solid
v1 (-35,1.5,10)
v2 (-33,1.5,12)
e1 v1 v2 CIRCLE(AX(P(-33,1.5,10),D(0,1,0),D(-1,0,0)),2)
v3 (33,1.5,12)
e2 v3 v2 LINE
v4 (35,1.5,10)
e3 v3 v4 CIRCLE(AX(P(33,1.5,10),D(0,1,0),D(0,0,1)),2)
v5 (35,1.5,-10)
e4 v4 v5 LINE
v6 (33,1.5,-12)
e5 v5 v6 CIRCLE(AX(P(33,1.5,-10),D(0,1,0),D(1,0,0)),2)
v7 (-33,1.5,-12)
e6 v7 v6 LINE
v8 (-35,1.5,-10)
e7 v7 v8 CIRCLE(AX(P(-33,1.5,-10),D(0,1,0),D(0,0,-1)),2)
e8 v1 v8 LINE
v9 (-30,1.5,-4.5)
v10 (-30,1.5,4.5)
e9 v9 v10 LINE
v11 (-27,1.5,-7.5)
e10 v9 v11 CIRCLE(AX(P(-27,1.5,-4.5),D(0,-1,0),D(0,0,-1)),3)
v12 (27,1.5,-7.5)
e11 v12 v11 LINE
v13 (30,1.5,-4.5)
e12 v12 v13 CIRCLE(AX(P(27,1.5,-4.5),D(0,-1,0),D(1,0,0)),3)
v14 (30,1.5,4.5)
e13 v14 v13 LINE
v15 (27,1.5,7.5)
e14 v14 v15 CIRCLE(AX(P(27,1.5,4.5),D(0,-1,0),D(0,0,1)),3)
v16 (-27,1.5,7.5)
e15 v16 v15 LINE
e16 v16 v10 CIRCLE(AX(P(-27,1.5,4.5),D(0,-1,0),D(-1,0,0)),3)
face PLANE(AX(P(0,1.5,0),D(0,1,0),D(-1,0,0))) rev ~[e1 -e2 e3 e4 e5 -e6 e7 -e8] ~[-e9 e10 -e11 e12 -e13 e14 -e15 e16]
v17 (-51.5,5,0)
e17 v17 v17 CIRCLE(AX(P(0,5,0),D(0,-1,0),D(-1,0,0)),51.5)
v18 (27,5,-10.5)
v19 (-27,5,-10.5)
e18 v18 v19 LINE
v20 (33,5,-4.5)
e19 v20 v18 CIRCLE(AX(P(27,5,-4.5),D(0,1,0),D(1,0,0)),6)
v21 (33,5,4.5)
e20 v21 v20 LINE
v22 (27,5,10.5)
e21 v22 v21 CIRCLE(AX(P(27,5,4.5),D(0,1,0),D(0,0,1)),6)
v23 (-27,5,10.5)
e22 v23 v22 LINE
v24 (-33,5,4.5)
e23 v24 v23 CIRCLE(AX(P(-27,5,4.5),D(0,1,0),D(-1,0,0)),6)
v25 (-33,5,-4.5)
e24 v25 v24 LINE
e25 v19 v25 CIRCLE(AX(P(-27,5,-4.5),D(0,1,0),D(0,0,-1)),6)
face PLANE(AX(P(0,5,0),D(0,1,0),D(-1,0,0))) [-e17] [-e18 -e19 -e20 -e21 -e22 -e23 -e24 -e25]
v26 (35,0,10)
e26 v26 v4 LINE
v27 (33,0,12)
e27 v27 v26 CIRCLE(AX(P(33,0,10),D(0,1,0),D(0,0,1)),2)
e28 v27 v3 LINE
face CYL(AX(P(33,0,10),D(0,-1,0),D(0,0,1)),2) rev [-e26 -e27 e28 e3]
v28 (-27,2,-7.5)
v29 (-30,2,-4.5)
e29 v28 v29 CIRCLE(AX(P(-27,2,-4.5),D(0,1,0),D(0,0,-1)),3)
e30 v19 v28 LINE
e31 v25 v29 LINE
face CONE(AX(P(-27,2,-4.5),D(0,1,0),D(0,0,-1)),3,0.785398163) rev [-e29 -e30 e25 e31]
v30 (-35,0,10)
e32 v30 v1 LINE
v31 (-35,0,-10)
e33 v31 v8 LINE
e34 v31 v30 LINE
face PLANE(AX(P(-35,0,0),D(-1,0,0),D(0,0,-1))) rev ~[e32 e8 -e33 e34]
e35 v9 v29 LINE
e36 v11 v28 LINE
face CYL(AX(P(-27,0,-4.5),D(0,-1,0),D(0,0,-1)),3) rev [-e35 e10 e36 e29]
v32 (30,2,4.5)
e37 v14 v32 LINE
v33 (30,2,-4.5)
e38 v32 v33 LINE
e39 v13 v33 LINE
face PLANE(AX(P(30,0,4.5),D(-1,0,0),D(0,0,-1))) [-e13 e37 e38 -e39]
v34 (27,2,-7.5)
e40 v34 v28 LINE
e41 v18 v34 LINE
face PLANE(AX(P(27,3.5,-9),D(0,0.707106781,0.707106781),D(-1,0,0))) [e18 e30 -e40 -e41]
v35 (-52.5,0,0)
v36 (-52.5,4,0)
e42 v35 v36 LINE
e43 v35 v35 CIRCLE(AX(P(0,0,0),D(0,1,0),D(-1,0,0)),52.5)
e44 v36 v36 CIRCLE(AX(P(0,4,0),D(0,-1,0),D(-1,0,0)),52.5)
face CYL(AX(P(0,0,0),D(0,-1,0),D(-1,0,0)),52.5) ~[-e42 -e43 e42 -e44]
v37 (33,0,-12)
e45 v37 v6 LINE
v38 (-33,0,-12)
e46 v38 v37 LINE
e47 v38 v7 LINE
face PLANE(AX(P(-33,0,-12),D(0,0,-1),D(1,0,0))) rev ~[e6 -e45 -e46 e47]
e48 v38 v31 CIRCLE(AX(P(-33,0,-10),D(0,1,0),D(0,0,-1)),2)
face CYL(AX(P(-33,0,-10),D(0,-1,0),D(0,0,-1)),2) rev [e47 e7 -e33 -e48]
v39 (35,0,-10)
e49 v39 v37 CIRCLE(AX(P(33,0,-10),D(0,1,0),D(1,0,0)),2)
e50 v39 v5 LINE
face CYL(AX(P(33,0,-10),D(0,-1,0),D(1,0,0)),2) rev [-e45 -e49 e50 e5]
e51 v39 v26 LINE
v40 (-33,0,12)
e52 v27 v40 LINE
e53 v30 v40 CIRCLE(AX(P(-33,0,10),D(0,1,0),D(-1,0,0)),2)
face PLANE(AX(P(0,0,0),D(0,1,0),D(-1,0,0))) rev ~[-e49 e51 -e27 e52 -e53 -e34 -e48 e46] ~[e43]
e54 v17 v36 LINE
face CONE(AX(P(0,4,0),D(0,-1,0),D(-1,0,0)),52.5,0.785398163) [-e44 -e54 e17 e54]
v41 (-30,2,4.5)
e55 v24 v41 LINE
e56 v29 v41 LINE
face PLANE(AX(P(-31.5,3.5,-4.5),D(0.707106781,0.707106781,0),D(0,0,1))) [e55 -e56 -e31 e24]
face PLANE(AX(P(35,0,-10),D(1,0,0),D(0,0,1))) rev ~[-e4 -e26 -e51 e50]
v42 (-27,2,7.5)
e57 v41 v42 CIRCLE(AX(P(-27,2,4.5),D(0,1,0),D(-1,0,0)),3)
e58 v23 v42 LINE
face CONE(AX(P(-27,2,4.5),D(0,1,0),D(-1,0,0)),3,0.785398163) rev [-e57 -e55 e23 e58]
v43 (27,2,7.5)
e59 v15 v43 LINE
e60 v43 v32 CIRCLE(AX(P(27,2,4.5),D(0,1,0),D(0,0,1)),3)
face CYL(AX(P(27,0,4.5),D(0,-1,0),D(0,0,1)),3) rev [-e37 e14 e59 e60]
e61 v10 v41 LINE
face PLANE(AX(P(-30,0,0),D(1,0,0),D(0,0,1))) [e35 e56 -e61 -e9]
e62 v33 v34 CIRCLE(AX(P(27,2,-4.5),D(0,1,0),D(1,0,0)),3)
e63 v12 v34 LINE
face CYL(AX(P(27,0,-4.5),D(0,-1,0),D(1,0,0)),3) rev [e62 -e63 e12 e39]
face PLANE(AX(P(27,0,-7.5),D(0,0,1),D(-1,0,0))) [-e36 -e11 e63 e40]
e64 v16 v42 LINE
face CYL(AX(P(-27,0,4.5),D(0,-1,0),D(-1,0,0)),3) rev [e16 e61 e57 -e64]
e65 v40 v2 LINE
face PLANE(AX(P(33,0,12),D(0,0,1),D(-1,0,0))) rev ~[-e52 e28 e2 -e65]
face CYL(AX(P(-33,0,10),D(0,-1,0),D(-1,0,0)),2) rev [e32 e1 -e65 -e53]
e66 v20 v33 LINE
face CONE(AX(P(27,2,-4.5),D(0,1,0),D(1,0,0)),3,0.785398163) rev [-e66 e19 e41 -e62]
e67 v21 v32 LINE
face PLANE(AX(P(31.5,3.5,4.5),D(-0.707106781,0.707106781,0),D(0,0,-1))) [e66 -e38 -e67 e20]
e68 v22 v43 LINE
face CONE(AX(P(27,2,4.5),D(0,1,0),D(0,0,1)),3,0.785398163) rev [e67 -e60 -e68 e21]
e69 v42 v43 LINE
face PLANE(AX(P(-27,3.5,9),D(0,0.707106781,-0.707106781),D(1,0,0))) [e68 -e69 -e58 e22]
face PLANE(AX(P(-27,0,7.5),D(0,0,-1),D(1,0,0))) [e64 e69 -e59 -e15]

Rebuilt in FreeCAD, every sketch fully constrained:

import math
import FreeCAD as App
import Part
import Sketcher
Q = App.Units.Quantity


def edges_at(feature, points):
    """Names of the edges that pass closest to the given points."""
    edges = feature.Shape.Edges
    near = lambda p: min(range(len(edges)), key=lambda i: edges[i].distToShape(Part.Vertex(*p))[0])
    return sorted({f"Edge{near(p) + 1}" for p in points})

doc = App.newDocument("Part")
body = doc.addObject("PartDesign::Body", "Body")

sketch1 = body.newObject("Sketcher::SketchObject", "Sketch")
sketch1.AttachmentSupport = (doc.getObject("XZ_Plane"), [""])
sketch1.MapMode = "FlatFace"
sketch1.addGeometry([
    Part.Circle(App.Vector(0, 0, 0), App.Vector(0, 0, 1), 52.5),
    Part.LineSegment(App.Vector(-30, 4.5, 0), App.Vector(-30, -4.5, 0)),
    Part.ArcOfCircle(Part.Circle(App.Vector(-27, -4.5, 0), App.Vector(0, 0, 1), 3), math.radians(180), math.radians(270)),
    Part.LineSegment(App.Vector(-27, -7.5, 0), App.Vector(27, -7.5, 0)),
    Part.ArcOfCircle(Part.Circle(App.Vector(27, -4.5, 0), App.Vector(0, 0, 1), 3), math.radians(-90), math.radians(0)),
    Part.LineSegment(App.Vector(30, -4.5, 0), App.Vector(30, 4.5, 0)),
    Part.ArcOfCircle(Part.Circle(App.Vector(27, 4.5, 0), App.Vector(0, 0, 1), 3), math.radians(0), math.radians(90)),
    Part.LineSegment(App.Vector(27, 7.5, 0), App.Vector(-27, 7.5, 0)),
    Part.ArcOfCircle(Part.Circle(App.Vector(-27, 4.5, 0), App.Vector(0, 0, 1), 3), math.radians(90), math.radians(180)),
], False)
sketch1.addConstraint([
    Sketcher.Constraint("Tangent", 1, 2, 2, 1),
    Sketcher.Constraint("Tangent", 2, 2, 3, 1),
    Sketcher.Constraint("Tangent", 3, 2, 4, 1),
    Sketcher.Constraint("Tangent", 4, 2, 5, 1),
    Sketcher.Constraint("Tangent", 5, 2, 6, 1),
    Sketcher.Constraint("Tangent", 6, 2, 7, 1),
    Sketcher.Constraint("Tangent", 7, 2, 8, 1),
    Sketcher.Constraint("Tangent", 8, 2, 1, 1),
    Sketcher.Constraint("Vertical", 1),
    Sketcher.Constraint("Horizontal", 3),
    Sketcher.Constraint("Vertical", 5),
    Sketcher.Constraint("Horizontal", 7),
    Sketcher.Constraint("Coincident", 0, 3, -1, 1),
    Sketcher.Constraint("Equal", 2, 4),
    Sketcher.Constraint("Equal", 4, 6),
    Sketcher.Constraint("Equal", 6, 8),
    Sketcher.Constraint("Symmetric", 2, 3, 6, 3, -1, 1),
    Sketcher.Constraint("Diameter", 0, Q("105 mm")),
    Sketcher.Constraint("Radius", 2, Q("3 mm")),
    Sketcher.Constraint("DistanceY", 3, 2, 6, 2, Q("15 mm")),
    Sketcher.Constraint("DistanceX", 3, 1, 3, 2, Q("54 mm")),
])
pad1 = body.newObject("PartDesign::Pad", "Pad")
pad1.Profile = sketch1
pad1.Length = 5
pad1.Reversed = True
doc.recompute()

chamfer = body.newObject("PartDesign::Chamfer", "Chamfer")
chamfer.Base = (pad1, edges_at(pad1, [
    (0, 5, 7.5),
    (-29.121, 5, 6.621),
    (-30, 5, 0),
    (-29.121, 5, -6.621),
    (0, 5, -7.5),
    (29.121, 5, -6.621),
    (30, 5, 0),
    (29.121, 5, 6.621),
]))
chamfer.Size = 3
doc.recompute()

chamfer2 = body.newObject("PartDesign::Chamfer", "Chamfer001")
chamfer2.Base = (chamfer, edges_at(chamfer, [(52.5, 5, 0)]))
chamfer2.Size = 1

sketch2 = body.newObject("Sketcher::SketchObject", "Sketch001")
sketch2.AttachmentSupport = (doc.getObject("XZ_Plane"), [""])
sketch2.MapMode = "FlatFace"
sketch2.addGeometry([
    Part.LineSegment(App.Vector(-35, -10, 0), App.Vector(-35, 10, 0)),
    Part.ArcOfCircle(Part.Circle(App.Vector(-33, 10, 0), App.Vector(0, 0, 1), 2), math.radians(90), math.radians(180)),
    Part.LineSegment(App.Vector(-33, 12, 0), App.Vector(33, 12, 0)),
    Part.ArcOfCircle(Part.Circle(App.Vector(33, 10, 0), App.Vector(0, 0, 1), 2), math.radians(0), math.radians(90)),
    Part.LineSegment(App.Vector(35, 10, 0), App.Vector(35, -10, 0)),
    Part.ArcOfCircle(Part.Circle(App.Vector(33, -10, 0), App.Vector(0, 0, 1), 2), math.radians(-90), math.radians(0)),
    Part.LineSegment(App.Vector(33, -12, 0), App.Vector(-33, -12, 0)),
    Part.ArcOfCircle(Part.Circle(App.Vector(-33, -10, 0), App.Vector(0, 0, 1), 2), math.radians(180), math.radians(270)),
], False)
sketch2.addConstraint([
    Sketcher.Constraint("Tangent", 0, 2, 1, 2),
    Sketcher.Constraint("Tangent", 1, 1, 2, 1),
    Sketcher.Constraint("Tangent", 2, 2, 3, 2),
    Sketcher.Constraint("Tangent", 3, 1, 4, 1),
    Sketcher.Constraint("Tangent", 4, 2, 5, 2),
    Sketcher.Constraint("Tangent", 5, 1, 6, 1),
    Sketcher.Constraint("Tangent", 6, 2, 7, 2),
    Sketcher.Constraint("Tangent", 7, 1, 0, 1),
    Sketcher.Constraint("Vertical", 0),
    Sketcher.Constraint("Horizontal", 2),
    Sketcher.Constraint("Vertical", 4),
    Sketcher.Constraint("Horizontal", 6),
    Sketcher.Constraint("Equal", 1, 3),
    Sketcher.Constraint("Equal", 3, 5),
    Sketcher.Constraint("Equal", 5, 7),
    Sketcher.Constraint("Symmetric", 1, 3, 5, 3, -1, 1),
    Sketcher.Constraint("Radius", 1, Q("2 mm")),
    Sketcher.Constraint("DistanceY", 5, 1, 2, 2, Q("24 mm")),
    Sketcher.Constraint("DistanceX", 2, 1, 2, 2, Q("66 mm")),
])
pocket1 = body.newObject("PartDesign::Pocket", "Pocket")
pocket1.Profile = sketch2
pocket1.Length = 1.5

doc.recompute()
